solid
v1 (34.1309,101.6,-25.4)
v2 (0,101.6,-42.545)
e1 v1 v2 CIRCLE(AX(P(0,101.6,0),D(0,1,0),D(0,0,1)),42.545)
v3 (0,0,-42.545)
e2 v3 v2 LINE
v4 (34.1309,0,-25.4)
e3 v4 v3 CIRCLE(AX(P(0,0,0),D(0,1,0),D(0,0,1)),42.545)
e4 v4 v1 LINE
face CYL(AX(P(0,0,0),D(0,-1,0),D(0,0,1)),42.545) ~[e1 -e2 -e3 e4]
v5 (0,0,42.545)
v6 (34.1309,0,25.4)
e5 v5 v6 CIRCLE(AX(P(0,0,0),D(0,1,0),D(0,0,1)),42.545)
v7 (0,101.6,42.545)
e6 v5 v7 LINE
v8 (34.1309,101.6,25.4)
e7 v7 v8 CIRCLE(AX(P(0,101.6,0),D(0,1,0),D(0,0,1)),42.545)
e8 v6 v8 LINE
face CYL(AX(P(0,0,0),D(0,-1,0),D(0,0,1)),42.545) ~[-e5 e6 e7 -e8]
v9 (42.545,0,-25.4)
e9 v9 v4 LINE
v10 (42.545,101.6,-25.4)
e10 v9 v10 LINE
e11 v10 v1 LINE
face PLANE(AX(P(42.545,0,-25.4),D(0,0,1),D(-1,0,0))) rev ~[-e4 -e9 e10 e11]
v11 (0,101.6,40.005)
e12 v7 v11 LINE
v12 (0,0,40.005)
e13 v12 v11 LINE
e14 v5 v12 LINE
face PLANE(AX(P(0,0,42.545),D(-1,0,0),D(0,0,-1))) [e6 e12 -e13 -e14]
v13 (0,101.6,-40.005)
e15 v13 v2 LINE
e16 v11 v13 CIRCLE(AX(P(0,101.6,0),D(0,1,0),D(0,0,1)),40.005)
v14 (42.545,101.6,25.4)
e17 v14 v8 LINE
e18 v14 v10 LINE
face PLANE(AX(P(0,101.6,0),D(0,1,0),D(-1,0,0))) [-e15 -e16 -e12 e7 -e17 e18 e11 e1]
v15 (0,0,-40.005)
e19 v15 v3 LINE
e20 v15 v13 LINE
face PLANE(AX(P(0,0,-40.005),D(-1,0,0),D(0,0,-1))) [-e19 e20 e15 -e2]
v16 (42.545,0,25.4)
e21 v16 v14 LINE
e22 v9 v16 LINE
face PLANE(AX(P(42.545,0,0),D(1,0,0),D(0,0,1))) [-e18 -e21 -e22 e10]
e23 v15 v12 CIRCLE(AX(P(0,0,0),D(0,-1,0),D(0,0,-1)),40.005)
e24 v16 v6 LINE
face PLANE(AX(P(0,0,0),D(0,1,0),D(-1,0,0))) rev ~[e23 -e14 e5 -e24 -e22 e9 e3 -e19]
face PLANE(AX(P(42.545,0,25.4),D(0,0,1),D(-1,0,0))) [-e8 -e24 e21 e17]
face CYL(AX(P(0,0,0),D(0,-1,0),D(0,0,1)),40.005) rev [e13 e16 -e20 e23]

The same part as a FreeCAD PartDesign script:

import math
import FreeCAD as App
import Part
import Sketcher
from FreeCAD import Vector
Q = App.Units.Quantity

doc = App.newDocument("Part")
body = doc.addObject("PartDesign::Body", "Body")

sketch1 = body.newObject("Sketcher::SketchObject", "Sketch")
sketch1.AttachmentSupport = (doc.getObject("XZ_Plane"), [""])
sketch1.MapMode = "FlatFace"
sketch1.addGeometry(Part.LineSegment(Vector(0, 40, 0), Vector(0, 42.5, 0)), False)
sketch1.addGeometry(Part.ArcOfCircle(Part.Circle(Vector(0, 0, 0), Vector(0, 0, 1), 42.5), math.radians(37), math.radians(90)), False)
sketch1.addGeometry(Part.LineSegment(Vector(34.1, 25.4, 0), Vector(42.5, 25.4, 0)), False)
sketch1.addGeometry(Part.LineSegment(Vector(42.5, 25.4, 0), Vector(42.5, -25.4, 0)), False)
sketch1.addGeometry(Part.LineSegment(Vector(42.5, -25.4, 0), Vector(34.1, -25.4, 0)), False)
sketch1.addGeometry(Part.ArcOfCircle(Part.Circle(Vector(0, 0, 0), Vector(0, 0, 1), 42.5), math.radians(-90), math.radians(-37)), False)
sketch1.addGeometry(Part.LineSegment(Vector(0, -42.5, 0), Vector(0, -40, 0)), False)
sketch1.addGeometry(Part.ArcOfCircle(Part.Circle(Vector(0, 0, 0), Vector(0, 0, 1), 40), math.radians(-90), math.radians(90)), False)
sketch1.addConstraint(Sketcher.Constraint("Coincident", 0, 2, 1, 2))
sketch1.addConstraint(Sketcher.Constraint("Coincident", 1, 1, 2, 1))
sketch1.addConstraint(Sketcher.Constraint("Coincident", 2, 2, 3, 1))
sketch1.addConstraint(Sketcher.Constraint("Coincident", 3, 2, 4, 1))
sketch1.addConstraint(Sketcher.Constraint("Coincident", 4, 2, 5, 2))
sketch1.addConstraint(Sketcher.Constraint("Coincident", 5, 1, 6, 1))
sketch1.addConstraint(Sketcher.Constraint("Coincident", 6, 2, 7, 1))
sketch1.addConstraint(Sketcher.Constraint("Coincident", 7, 2, 0, 1))
sketch1.addConstraint(Sketcher.Constraint("Vertical", 0))
sketch1.addConstraint(Sketcher.Constraint("Horizontal", 2))
sketch1.addConstraint(Sketcher.Constraint("Vertical", 3))
sketch1.addConstraint(Sketcher.Constraint("Horizontal", 4))
sketch1.addConstraint(Sketcher.Constraint("Vertical", 6))
sketch1.addConstraint(Sketcher.Constraint("Coincident", 1, 3, -1, 1))
sketch1.addConstraint(Sketcher.Constraint("Coincident", 5, 3, -1, 1))
sketch1.addConstraint(Sketcher.Constraint("Coincident", 7, 3, -1, 1))
sketch1.addConstraint(Sketcher.Constraint("Equal", 1, 5))
sketch1.addConstraint(Sketcher.Constraint("PointOnObject", 0, 2, -2))
sketch1.addConstraint(Sketcher.Constraint("PointOnObject", 5, 1, -2))
sketch1.addConstraint(Sketcher.Constraint("Vertical", 1, 1, 4, 2))
sketch1.addConstraint(Sketcher.Constraint("DistanceY", -1, 1, 1, 1, Q("1 in")))
sketch1.addConstraint(Sketcher.Constraint("Radius", 1, Q("1.675 in")))
sketch1.addConstraint(Sketcher.Constraint("Radius", 7, Q("1.575 in")))
sketch1.addConstraint(Sketcher.Constraint("DistanceX", -1, 1, 2, 2, Q("1.675 in")))
pad1 = body.newObject("PartDesign::Pad", "Pad")
pad1.Profile = sketch1
pad1.Length = Q("4 in")
pad1.Reversed = True

doc.recompute()
